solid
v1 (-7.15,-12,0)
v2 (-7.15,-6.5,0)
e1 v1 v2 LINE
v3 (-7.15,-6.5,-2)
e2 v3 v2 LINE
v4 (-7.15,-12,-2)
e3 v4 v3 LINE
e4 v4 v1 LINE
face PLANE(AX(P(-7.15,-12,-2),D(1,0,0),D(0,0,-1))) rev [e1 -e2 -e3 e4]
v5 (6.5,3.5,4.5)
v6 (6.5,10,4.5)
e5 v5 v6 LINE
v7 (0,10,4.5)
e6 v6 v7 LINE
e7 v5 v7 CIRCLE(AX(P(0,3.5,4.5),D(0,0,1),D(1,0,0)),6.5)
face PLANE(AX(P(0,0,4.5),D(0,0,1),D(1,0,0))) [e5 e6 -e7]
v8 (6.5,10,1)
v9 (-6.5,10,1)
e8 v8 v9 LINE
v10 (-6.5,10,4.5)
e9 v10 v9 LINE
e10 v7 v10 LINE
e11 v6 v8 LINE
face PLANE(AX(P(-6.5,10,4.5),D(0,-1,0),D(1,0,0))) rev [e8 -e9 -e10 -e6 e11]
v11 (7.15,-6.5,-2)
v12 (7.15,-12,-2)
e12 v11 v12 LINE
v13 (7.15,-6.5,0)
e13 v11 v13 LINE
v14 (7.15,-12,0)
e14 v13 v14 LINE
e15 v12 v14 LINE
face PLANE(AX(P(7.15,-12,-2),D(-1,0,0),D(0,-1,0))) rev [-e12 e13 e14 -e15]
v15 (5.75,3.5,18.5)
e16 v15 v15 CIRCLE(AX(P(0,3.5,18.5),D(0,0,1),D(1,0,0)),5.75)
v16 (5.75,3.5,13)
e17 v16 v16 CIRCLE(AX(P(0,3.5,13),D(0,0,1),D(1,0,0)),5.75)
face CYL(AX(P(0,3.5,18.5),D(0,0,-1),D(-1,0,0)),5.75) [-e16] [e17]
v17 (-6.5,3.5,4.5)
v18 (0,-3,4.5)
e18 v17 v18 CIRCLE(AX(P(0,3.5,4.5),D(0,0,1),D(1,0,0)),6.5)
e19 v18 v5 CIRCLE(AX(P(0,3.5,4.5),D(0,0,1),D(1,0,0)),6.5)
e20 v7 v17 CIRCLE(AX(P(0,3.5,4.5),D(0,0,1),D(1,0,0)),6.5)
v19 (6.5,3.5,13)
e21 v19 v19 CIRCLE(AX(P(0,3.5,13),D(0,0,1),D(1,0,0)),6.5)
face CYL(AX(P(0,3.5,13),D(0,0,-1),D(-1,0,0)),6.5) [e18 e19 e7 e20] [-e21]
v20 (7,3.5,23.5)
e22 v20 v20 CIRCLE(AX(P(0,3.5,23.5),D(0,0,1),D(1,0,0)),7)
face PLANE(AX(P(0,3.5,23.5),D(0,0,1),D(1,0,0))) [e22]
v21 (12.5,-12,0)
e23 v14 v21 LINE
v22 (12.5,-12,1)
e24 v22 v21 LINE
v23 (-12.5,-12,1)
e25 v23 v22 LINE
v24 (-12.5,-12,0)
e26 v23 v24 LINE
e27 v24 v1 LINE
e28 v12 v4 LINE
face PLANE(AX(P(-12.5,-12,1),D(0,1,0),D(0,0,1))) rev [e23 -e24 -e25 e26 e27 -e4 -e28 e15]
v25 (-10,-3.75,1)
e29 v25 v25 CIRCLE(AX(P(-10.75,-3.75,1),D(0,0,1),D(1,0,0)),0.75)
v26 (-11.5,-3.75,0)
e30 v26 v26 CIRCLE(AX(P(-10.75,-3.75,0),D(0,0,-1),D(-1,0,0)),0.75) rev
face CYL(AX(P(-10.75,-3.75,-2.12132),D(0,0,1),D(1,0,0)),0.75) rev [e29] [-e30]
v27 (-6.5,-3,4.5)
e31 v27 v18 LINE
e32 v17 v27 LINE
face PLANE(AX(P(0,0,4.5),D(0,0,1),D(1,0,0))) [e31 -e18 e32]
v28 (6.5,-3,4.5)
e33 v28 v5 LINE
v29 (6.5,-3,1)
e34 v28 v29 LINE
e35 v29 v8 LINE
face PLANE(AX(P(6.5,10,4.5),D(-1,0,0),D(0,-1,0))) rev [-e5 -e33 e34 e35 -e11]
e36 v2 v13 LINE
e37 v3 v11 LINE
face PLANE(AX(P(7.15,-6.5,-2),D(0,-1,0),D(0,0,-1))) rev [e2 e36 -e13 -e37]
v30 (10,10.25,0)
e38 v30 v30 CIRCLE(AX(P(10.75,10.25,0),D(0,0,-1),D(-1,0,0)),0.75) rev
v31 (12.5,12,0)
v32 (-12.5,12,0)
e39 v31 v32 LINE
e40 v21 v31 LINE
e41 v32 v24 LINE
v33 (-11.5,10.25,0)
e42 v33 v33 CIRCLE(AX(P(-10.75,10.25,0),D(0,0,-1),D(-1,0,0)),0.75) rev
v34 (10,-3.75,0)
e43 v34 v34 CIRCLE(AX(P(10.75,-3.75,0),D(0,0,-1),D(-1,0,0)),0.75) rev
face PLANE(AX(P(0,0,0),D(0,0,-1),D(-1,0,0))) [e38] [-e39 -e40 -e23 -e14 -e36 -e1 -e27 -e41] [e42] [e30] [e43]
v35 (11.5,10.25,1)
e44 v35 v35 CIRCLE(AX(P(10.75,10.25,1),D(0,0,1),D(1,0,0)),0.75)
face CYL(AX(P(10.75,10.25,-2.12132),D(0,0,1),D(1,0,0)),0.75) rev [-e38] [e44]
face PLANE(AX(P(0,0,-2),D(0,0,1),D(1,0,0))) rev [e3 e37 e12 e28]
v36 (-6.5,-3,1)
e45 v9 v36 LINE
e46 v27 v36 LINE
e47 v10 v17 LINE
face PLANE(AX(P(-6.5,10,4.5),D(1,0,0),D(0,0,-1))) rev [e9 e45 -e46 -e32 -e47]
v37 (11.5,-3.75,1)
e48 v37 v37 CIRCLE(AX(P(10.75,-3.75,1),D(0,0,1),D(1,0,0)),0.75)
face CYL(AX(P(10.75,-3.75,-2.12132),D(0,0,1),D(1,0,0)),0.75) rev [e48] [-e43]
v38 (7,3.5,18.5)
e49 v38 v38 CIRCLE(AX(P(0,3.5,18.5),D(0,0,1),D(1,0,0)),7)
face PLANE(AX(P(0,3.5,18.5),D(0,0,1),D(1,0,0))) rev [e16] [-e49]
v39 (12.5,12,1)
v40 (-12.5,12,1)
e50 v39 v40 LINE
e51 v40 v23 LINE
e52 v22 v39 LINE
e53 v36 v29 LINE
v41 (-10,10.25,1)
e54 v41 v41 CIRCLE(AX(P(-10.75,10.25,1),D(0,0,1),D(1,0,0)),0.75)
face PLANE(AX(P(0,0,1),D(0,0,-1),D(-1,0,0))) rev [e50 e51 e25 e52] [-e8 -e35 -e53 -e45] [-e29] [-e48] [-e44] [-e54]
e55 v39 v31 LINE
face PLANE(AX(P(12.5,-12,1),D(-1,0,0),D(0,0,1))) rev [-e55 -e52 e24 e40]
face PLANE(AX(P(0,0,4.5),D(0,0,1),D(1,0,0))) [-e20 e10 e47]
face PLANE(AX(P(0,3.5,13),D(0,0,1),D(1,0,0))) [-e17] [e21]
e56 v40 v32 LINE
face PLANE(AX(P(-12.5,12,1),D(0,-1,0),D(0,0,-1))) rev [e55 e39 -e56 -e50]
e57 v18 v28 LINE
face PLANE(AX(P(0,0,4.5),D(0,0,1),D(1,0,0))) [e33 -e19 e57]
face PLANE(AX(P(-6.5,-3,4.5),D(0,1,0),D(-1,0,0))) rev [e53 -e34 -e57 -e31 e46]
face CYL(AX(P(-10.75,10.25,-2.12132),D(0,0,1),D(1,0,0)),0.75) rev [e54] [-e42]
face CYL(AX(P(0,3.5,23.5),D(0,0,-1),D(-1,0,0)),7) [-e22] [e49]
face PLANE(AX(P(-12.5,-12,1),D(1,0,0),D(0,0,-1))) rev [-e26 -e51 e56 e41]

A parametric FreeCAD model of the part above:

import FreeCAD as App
import Part
import Sketcher
Q = App.Units.Quantity


def add_polygon(sketch, points):
    """Adds a closed chain of lines whose ends are joined by coincident constraints."""
    first, n = sketch.GeometryCount, len(points)
    for a, b in zip(points, points[1:] + points[:1]):
        sketch.addGeometry(Part.LineSegment(App.Vector(*a, 0), App.Vector(*b, 0)), False)
    for i in range(n):
        sketch.addConstraint(Sketcher.Constraint("Coincident", first + i, 2, first + (i + 1) % n, 1))

doc = App.newDocument("Part")
body = doc.addObject("PartDesign::Body", "Body")

sketch1 = body.newObject("Sketcher::SketchObject", "Sketch")
sketch1.AttachmentSupport = (doc.getObject("XY_Plane"), [""])
sketch1.MapMode = "FlatFace"
add_polygon(sketch1, [(-12, 12), (-12, -12), (12, -12), (12, 12)])
sketch1.addConstraint([
    Sketcher.Constraint("Vertical", 0),
    Sketcher.Constraint("Horizontal", 1),
    Sketcher.Constraint("Vertical", 2),
    Sketcher.Constraint("Horizontal", 3),
    Sketcher.Constraint("Symmetric", 0, 2, 2, 2, -1, 1),
    Sketcher.Constraint("DistanceX", 1, 1, 1, 2, Q("25 mm")),
    Sketcher.Constraint("DistanceY", 0, 2, 0, 1, Q("24 mm")),
])
pad1 = body.newObject("PartDesign::Pad", "Pad")
pad1.Profile = sketch1
pad1.Length = 1

sketch2 = body.newObject("Sketcher::SketchObject", "Sketch001")
sketch2.AttachmentSupport = (doc.getObject("XY_Plane"), [""])
sketch2.MapMode = "FlatFace"
sketch2.AttachmentOffset = App.Placement(App.Vector(0, 0, 1), App.Rotation())
add_polygon(sketch2, [(-6, 10), (-6, -3), (6, -3), (6, 10)])
sketch2.addConstraint([
    Sketcher.Constraint("Vertical", 0),
    Sketcher.Constraint("Horizontal", 1),
    Sketcher.Constraint("Vertical", 2),
    Sketcher.Constraint("Horizontal", 3),
    Sketcher.Constraint("Equal", 3, 0),
    Sketcher.Constraint("DistanceX", 1, 1, 1, 2, Q("13 mm")),
    Sketcher.Constraint("DistanceY", 0, 2, -1, 1, Q("3 mm")),
    Sketcher.Constraint("DistanceX", 0, 2, -1, 1, Q("6.5 mm")),
])
pad2 = body.newObject("PartDesign::Pad", "Pad001")
pad2.Profile = sketch2
pad2.Length = 3.5

sketch3 = body.newObject("Sketcher::SketchObject", "Sketch002")
sketch3.AttachmentSupport = (doc.getObject("XY_Plane"), [""])
sketch3.MapMode = "FlatFace"
sketch3.AttachmentOffset = App.Placement(App.Vector(0, 0, 4.5), App.Rotation())
sketch3.addGeometry(Part.Circle(App.Vector(0, 4, 0), App.Vector(0, 0, 1), 6), False)
sketch3.addConstraint([
    Sketcher.Constraint("PointOnObject", 0, 3, -2),
    Sketcher.Constraint("Diameter", 0, Q("13 mm")),
    Sketcher.Constraint("DistanceY", -1, 1, 0, 3, Q("3.5 mm")),
])
pad3 = body.newObject("PartDesign::Pad", "Pad002")
pad3.Profile = sketch3
pad3.Length = 8.5

sketch4 = body.newObject("Sketcher::SketchObject", "Sketch003")
sketch4.AttachmentSupport = (doc.getObject("XY_Plane"), [""])
sketch4.MapMode = "FlatFace"
sketch4.AttachmentOffset = App.Placement(App.Vector(0, 0, 13), App.Rotation())
sketch4.addGeometry(Part.Circle(App.Vector(0, 4, 0), App.Vector(0, 0, 1), 6), False)
sketch4.addConstraint([
    Sketcher.Constraint("PointOnObject", 0, 3, -2),
    Sketcher.Constraint("Diameter", 0, Q("11.5 mm")),
    Sketcher.Constraint("DistanceY", -1, 1, 0, 3, Q("3.5 mm")),
])
pad4 = body.newObject("PartDesign::Pad", "Pad003")
pad4.Profile = sketch4
pad4.Length = 5.5

sketch5 = body.newObject("Sketcher::SketchObject", "Sketch004")
sketch5.AttachmentSupport = (doc.getObject("XY_Plane"), [""])
sketch5.MapMode = "FlatFace"
sketch5.AttachmentOffset = App.Placement(App.Vector(0, 0, 18.5), App.Rotation())
sketch5.addGeometry(Part.Circle(App.Vector(0, 4, 0), App.Vector(0, 0, 1), 7), False)
sketch5.addConstraint([
    Sketcher.Constraint("PointOnObject", 0, 3, -2),
    Sketcher.Constraint("Diameter", 0, Q("14 mm")),
    Sketcher.Constraint("DistanceY", -1, 1, 0, 3, Q("3.5 mm")),
])
pad5 = body.newObject("PartDesign::Pad", "Pad004")
pad5.Profile = sketch5
pad5.Length = 5

sketch6 = body.newObject("Sketcher::SketchObject", "Sketch005")
sketch6.AttachmentSupport = (doc.getObject("XY_Plane"), [""])
sketch6.MapMode = "FlatFace"
sketch6.AttachmentOffset = App.Placement(App.Vector(0, 0, 1), App.Rotation())
sketch6.addGeometry([
    Part.Circle(App.Vector(10.8, 10.2, 0), App.Vector(0, 0, 1), 0.8),
    Part.Circle(App.Vector(10.8, -3.8, 0), App.Vector(0, 0, 1), 0.8),
    Part.Circle(App.Vector(-10.8, 10.2, 0), App.Vector(0, 0, 1), 0.8),
    Part.Circle(App.Vector(-10.8, -3.8, 0), App.Vector(0, 0, 1), 0.8),
], False)
sketch6.addConstraint([
    Sketcher.Constraint("Equal", 0, 1),
    Sketcher.Constraint("Equal", 1, 2),
    Sketcher.Constraint("Equal", 2, 3),
    Sketcher.Constraint("Symmetric", 0, 3, 2, 3, -2),
    Sketcher.Constraint("Symmetric", 1, 3, 3, 3, -2),
    Sketcher.Constraint("Vertical", 0, 3, 1, 3),
    Sketcher.Constraint("Diameter", 0, Q("1.5 mm")),
    Sketcher.Constraint("DistanceY", 1, 3, 0, 3, Q("14 mm")),
    Sketcher.Constraint("DistanceX", 2, 3, 0, 3, Q("21.5 mm")),
    Sketcher.Constraint("DistanceY", -1, 1, 0, 3, Q("10.25 mm")),
])
pocket1 = body.newObject("PartDesign::Pocket", "Pocket")
pocket1.Profile = sketch6
pocket1.Length = 1

sketch7 = body.newObject("Sketcher::SketchObject", "Sketch006")
sketch7.AttachmentSupport = (doc.getObject("XY_Plane"), [""])
sketch7.MapMode = "FlatFace"
add_polygon(sketch7, [(7, -6), (7, -12), (-7, -12), (-7, -6)])
sketch7.addConstraint([
    Sketcher.Constraint("Vertical", 0),
    Sketcher.Constraint("Horizontal", 1),
    Sketcher.Constraint("Vertical", 2),
    Sketcher.Constraint("Horizontal", 3),
    Sketcher.Constraint("DistanceX", 1, 2, 1, 1, Q("14.3 mm")),
    Sketcher.Constraint("DistanceY", 0, 2, 0, 1, Q("5.5 mm")),
    Sketcher.Constraint("DistanceY", 0, 2, -1, 1, Q("12 mm")),
    Sketcher.Constraint("DistanceX", -1, 1, 0, 2, Q("7.15 mm")),
])
pad6 = body.newObject("PartDesign::Pad", "Pad005")
pad6.Profile = sketch7
pad6.Length = 2
pad6.Reversed = True

doc.recompute()
